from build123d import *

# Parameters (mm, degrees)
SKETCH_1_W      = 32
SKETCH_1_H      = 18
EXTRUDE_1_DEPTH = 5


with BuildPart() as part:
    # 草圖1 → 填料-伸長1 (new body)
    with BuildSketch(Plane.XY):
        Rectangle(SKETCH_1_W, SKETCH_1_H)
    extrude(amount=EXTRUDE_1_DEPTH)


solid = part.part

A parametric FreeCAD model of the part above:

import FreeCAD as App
import Part
import Sketcher

V = App.Vector
Q = App.Units.Quantity


def add_polygon(sketch, points):
    """Adds a closed chain of lines whose ends are joined by coincident constraints."""
    first, n = sketch.GeometryCount, len(points)
    for a, b in zip(points, points[1:] + points[:1]):
        sketch.addGeometry(Part.LineSegment(App.Vector(*a, 0), App.Vector(*b, 0)), False)
    for i in range(n):
        sketch.addConstraint(Sketcher.Constraint("Coincident", first + i, 2, first + (i + 1) % n, 1))

doc = App.newDocument("Part")
body = doc.addObject("PartDesign::Body", "Body")

# Sketch on XY plane
sketch1 = body.newObject("Sketcher::SketchObject", "Sketch")
sketch1.AttachmentSupport = (doc.getObject("XY_Plane"), [""])
sketch1.MapMode = "FlatFace"
add_polygon(sketch1, [(-16, 9), (-16, -9), (16, -9), (16, 9)])  # lines 0-3
sketch1.addConstraint([
    Sketcher.Constraint("Vertical", 0),
    Sketcher.Constraint("Horizontal", 1),
    Sketcher.Constraint("Vertical", 2),
    Sketcher.Constraint("Horizontal", 3),
    Sketcher.Constraint("Symmetric", 0, 2, 2, 2, -1, 1),
    Sketcher.Constraint("DistanceX", 1, 1, 1, 2, Q("32 mm")),
    Sketcher.Constraint("DistanceY", 0, 2, 0, 1, Q("18 mm")),
])
pad1 = body.newObject("PartDesign::Pad", "Pad")
pad1.Profile = sketch1
pad1.Length = 5

doc.recompute()
